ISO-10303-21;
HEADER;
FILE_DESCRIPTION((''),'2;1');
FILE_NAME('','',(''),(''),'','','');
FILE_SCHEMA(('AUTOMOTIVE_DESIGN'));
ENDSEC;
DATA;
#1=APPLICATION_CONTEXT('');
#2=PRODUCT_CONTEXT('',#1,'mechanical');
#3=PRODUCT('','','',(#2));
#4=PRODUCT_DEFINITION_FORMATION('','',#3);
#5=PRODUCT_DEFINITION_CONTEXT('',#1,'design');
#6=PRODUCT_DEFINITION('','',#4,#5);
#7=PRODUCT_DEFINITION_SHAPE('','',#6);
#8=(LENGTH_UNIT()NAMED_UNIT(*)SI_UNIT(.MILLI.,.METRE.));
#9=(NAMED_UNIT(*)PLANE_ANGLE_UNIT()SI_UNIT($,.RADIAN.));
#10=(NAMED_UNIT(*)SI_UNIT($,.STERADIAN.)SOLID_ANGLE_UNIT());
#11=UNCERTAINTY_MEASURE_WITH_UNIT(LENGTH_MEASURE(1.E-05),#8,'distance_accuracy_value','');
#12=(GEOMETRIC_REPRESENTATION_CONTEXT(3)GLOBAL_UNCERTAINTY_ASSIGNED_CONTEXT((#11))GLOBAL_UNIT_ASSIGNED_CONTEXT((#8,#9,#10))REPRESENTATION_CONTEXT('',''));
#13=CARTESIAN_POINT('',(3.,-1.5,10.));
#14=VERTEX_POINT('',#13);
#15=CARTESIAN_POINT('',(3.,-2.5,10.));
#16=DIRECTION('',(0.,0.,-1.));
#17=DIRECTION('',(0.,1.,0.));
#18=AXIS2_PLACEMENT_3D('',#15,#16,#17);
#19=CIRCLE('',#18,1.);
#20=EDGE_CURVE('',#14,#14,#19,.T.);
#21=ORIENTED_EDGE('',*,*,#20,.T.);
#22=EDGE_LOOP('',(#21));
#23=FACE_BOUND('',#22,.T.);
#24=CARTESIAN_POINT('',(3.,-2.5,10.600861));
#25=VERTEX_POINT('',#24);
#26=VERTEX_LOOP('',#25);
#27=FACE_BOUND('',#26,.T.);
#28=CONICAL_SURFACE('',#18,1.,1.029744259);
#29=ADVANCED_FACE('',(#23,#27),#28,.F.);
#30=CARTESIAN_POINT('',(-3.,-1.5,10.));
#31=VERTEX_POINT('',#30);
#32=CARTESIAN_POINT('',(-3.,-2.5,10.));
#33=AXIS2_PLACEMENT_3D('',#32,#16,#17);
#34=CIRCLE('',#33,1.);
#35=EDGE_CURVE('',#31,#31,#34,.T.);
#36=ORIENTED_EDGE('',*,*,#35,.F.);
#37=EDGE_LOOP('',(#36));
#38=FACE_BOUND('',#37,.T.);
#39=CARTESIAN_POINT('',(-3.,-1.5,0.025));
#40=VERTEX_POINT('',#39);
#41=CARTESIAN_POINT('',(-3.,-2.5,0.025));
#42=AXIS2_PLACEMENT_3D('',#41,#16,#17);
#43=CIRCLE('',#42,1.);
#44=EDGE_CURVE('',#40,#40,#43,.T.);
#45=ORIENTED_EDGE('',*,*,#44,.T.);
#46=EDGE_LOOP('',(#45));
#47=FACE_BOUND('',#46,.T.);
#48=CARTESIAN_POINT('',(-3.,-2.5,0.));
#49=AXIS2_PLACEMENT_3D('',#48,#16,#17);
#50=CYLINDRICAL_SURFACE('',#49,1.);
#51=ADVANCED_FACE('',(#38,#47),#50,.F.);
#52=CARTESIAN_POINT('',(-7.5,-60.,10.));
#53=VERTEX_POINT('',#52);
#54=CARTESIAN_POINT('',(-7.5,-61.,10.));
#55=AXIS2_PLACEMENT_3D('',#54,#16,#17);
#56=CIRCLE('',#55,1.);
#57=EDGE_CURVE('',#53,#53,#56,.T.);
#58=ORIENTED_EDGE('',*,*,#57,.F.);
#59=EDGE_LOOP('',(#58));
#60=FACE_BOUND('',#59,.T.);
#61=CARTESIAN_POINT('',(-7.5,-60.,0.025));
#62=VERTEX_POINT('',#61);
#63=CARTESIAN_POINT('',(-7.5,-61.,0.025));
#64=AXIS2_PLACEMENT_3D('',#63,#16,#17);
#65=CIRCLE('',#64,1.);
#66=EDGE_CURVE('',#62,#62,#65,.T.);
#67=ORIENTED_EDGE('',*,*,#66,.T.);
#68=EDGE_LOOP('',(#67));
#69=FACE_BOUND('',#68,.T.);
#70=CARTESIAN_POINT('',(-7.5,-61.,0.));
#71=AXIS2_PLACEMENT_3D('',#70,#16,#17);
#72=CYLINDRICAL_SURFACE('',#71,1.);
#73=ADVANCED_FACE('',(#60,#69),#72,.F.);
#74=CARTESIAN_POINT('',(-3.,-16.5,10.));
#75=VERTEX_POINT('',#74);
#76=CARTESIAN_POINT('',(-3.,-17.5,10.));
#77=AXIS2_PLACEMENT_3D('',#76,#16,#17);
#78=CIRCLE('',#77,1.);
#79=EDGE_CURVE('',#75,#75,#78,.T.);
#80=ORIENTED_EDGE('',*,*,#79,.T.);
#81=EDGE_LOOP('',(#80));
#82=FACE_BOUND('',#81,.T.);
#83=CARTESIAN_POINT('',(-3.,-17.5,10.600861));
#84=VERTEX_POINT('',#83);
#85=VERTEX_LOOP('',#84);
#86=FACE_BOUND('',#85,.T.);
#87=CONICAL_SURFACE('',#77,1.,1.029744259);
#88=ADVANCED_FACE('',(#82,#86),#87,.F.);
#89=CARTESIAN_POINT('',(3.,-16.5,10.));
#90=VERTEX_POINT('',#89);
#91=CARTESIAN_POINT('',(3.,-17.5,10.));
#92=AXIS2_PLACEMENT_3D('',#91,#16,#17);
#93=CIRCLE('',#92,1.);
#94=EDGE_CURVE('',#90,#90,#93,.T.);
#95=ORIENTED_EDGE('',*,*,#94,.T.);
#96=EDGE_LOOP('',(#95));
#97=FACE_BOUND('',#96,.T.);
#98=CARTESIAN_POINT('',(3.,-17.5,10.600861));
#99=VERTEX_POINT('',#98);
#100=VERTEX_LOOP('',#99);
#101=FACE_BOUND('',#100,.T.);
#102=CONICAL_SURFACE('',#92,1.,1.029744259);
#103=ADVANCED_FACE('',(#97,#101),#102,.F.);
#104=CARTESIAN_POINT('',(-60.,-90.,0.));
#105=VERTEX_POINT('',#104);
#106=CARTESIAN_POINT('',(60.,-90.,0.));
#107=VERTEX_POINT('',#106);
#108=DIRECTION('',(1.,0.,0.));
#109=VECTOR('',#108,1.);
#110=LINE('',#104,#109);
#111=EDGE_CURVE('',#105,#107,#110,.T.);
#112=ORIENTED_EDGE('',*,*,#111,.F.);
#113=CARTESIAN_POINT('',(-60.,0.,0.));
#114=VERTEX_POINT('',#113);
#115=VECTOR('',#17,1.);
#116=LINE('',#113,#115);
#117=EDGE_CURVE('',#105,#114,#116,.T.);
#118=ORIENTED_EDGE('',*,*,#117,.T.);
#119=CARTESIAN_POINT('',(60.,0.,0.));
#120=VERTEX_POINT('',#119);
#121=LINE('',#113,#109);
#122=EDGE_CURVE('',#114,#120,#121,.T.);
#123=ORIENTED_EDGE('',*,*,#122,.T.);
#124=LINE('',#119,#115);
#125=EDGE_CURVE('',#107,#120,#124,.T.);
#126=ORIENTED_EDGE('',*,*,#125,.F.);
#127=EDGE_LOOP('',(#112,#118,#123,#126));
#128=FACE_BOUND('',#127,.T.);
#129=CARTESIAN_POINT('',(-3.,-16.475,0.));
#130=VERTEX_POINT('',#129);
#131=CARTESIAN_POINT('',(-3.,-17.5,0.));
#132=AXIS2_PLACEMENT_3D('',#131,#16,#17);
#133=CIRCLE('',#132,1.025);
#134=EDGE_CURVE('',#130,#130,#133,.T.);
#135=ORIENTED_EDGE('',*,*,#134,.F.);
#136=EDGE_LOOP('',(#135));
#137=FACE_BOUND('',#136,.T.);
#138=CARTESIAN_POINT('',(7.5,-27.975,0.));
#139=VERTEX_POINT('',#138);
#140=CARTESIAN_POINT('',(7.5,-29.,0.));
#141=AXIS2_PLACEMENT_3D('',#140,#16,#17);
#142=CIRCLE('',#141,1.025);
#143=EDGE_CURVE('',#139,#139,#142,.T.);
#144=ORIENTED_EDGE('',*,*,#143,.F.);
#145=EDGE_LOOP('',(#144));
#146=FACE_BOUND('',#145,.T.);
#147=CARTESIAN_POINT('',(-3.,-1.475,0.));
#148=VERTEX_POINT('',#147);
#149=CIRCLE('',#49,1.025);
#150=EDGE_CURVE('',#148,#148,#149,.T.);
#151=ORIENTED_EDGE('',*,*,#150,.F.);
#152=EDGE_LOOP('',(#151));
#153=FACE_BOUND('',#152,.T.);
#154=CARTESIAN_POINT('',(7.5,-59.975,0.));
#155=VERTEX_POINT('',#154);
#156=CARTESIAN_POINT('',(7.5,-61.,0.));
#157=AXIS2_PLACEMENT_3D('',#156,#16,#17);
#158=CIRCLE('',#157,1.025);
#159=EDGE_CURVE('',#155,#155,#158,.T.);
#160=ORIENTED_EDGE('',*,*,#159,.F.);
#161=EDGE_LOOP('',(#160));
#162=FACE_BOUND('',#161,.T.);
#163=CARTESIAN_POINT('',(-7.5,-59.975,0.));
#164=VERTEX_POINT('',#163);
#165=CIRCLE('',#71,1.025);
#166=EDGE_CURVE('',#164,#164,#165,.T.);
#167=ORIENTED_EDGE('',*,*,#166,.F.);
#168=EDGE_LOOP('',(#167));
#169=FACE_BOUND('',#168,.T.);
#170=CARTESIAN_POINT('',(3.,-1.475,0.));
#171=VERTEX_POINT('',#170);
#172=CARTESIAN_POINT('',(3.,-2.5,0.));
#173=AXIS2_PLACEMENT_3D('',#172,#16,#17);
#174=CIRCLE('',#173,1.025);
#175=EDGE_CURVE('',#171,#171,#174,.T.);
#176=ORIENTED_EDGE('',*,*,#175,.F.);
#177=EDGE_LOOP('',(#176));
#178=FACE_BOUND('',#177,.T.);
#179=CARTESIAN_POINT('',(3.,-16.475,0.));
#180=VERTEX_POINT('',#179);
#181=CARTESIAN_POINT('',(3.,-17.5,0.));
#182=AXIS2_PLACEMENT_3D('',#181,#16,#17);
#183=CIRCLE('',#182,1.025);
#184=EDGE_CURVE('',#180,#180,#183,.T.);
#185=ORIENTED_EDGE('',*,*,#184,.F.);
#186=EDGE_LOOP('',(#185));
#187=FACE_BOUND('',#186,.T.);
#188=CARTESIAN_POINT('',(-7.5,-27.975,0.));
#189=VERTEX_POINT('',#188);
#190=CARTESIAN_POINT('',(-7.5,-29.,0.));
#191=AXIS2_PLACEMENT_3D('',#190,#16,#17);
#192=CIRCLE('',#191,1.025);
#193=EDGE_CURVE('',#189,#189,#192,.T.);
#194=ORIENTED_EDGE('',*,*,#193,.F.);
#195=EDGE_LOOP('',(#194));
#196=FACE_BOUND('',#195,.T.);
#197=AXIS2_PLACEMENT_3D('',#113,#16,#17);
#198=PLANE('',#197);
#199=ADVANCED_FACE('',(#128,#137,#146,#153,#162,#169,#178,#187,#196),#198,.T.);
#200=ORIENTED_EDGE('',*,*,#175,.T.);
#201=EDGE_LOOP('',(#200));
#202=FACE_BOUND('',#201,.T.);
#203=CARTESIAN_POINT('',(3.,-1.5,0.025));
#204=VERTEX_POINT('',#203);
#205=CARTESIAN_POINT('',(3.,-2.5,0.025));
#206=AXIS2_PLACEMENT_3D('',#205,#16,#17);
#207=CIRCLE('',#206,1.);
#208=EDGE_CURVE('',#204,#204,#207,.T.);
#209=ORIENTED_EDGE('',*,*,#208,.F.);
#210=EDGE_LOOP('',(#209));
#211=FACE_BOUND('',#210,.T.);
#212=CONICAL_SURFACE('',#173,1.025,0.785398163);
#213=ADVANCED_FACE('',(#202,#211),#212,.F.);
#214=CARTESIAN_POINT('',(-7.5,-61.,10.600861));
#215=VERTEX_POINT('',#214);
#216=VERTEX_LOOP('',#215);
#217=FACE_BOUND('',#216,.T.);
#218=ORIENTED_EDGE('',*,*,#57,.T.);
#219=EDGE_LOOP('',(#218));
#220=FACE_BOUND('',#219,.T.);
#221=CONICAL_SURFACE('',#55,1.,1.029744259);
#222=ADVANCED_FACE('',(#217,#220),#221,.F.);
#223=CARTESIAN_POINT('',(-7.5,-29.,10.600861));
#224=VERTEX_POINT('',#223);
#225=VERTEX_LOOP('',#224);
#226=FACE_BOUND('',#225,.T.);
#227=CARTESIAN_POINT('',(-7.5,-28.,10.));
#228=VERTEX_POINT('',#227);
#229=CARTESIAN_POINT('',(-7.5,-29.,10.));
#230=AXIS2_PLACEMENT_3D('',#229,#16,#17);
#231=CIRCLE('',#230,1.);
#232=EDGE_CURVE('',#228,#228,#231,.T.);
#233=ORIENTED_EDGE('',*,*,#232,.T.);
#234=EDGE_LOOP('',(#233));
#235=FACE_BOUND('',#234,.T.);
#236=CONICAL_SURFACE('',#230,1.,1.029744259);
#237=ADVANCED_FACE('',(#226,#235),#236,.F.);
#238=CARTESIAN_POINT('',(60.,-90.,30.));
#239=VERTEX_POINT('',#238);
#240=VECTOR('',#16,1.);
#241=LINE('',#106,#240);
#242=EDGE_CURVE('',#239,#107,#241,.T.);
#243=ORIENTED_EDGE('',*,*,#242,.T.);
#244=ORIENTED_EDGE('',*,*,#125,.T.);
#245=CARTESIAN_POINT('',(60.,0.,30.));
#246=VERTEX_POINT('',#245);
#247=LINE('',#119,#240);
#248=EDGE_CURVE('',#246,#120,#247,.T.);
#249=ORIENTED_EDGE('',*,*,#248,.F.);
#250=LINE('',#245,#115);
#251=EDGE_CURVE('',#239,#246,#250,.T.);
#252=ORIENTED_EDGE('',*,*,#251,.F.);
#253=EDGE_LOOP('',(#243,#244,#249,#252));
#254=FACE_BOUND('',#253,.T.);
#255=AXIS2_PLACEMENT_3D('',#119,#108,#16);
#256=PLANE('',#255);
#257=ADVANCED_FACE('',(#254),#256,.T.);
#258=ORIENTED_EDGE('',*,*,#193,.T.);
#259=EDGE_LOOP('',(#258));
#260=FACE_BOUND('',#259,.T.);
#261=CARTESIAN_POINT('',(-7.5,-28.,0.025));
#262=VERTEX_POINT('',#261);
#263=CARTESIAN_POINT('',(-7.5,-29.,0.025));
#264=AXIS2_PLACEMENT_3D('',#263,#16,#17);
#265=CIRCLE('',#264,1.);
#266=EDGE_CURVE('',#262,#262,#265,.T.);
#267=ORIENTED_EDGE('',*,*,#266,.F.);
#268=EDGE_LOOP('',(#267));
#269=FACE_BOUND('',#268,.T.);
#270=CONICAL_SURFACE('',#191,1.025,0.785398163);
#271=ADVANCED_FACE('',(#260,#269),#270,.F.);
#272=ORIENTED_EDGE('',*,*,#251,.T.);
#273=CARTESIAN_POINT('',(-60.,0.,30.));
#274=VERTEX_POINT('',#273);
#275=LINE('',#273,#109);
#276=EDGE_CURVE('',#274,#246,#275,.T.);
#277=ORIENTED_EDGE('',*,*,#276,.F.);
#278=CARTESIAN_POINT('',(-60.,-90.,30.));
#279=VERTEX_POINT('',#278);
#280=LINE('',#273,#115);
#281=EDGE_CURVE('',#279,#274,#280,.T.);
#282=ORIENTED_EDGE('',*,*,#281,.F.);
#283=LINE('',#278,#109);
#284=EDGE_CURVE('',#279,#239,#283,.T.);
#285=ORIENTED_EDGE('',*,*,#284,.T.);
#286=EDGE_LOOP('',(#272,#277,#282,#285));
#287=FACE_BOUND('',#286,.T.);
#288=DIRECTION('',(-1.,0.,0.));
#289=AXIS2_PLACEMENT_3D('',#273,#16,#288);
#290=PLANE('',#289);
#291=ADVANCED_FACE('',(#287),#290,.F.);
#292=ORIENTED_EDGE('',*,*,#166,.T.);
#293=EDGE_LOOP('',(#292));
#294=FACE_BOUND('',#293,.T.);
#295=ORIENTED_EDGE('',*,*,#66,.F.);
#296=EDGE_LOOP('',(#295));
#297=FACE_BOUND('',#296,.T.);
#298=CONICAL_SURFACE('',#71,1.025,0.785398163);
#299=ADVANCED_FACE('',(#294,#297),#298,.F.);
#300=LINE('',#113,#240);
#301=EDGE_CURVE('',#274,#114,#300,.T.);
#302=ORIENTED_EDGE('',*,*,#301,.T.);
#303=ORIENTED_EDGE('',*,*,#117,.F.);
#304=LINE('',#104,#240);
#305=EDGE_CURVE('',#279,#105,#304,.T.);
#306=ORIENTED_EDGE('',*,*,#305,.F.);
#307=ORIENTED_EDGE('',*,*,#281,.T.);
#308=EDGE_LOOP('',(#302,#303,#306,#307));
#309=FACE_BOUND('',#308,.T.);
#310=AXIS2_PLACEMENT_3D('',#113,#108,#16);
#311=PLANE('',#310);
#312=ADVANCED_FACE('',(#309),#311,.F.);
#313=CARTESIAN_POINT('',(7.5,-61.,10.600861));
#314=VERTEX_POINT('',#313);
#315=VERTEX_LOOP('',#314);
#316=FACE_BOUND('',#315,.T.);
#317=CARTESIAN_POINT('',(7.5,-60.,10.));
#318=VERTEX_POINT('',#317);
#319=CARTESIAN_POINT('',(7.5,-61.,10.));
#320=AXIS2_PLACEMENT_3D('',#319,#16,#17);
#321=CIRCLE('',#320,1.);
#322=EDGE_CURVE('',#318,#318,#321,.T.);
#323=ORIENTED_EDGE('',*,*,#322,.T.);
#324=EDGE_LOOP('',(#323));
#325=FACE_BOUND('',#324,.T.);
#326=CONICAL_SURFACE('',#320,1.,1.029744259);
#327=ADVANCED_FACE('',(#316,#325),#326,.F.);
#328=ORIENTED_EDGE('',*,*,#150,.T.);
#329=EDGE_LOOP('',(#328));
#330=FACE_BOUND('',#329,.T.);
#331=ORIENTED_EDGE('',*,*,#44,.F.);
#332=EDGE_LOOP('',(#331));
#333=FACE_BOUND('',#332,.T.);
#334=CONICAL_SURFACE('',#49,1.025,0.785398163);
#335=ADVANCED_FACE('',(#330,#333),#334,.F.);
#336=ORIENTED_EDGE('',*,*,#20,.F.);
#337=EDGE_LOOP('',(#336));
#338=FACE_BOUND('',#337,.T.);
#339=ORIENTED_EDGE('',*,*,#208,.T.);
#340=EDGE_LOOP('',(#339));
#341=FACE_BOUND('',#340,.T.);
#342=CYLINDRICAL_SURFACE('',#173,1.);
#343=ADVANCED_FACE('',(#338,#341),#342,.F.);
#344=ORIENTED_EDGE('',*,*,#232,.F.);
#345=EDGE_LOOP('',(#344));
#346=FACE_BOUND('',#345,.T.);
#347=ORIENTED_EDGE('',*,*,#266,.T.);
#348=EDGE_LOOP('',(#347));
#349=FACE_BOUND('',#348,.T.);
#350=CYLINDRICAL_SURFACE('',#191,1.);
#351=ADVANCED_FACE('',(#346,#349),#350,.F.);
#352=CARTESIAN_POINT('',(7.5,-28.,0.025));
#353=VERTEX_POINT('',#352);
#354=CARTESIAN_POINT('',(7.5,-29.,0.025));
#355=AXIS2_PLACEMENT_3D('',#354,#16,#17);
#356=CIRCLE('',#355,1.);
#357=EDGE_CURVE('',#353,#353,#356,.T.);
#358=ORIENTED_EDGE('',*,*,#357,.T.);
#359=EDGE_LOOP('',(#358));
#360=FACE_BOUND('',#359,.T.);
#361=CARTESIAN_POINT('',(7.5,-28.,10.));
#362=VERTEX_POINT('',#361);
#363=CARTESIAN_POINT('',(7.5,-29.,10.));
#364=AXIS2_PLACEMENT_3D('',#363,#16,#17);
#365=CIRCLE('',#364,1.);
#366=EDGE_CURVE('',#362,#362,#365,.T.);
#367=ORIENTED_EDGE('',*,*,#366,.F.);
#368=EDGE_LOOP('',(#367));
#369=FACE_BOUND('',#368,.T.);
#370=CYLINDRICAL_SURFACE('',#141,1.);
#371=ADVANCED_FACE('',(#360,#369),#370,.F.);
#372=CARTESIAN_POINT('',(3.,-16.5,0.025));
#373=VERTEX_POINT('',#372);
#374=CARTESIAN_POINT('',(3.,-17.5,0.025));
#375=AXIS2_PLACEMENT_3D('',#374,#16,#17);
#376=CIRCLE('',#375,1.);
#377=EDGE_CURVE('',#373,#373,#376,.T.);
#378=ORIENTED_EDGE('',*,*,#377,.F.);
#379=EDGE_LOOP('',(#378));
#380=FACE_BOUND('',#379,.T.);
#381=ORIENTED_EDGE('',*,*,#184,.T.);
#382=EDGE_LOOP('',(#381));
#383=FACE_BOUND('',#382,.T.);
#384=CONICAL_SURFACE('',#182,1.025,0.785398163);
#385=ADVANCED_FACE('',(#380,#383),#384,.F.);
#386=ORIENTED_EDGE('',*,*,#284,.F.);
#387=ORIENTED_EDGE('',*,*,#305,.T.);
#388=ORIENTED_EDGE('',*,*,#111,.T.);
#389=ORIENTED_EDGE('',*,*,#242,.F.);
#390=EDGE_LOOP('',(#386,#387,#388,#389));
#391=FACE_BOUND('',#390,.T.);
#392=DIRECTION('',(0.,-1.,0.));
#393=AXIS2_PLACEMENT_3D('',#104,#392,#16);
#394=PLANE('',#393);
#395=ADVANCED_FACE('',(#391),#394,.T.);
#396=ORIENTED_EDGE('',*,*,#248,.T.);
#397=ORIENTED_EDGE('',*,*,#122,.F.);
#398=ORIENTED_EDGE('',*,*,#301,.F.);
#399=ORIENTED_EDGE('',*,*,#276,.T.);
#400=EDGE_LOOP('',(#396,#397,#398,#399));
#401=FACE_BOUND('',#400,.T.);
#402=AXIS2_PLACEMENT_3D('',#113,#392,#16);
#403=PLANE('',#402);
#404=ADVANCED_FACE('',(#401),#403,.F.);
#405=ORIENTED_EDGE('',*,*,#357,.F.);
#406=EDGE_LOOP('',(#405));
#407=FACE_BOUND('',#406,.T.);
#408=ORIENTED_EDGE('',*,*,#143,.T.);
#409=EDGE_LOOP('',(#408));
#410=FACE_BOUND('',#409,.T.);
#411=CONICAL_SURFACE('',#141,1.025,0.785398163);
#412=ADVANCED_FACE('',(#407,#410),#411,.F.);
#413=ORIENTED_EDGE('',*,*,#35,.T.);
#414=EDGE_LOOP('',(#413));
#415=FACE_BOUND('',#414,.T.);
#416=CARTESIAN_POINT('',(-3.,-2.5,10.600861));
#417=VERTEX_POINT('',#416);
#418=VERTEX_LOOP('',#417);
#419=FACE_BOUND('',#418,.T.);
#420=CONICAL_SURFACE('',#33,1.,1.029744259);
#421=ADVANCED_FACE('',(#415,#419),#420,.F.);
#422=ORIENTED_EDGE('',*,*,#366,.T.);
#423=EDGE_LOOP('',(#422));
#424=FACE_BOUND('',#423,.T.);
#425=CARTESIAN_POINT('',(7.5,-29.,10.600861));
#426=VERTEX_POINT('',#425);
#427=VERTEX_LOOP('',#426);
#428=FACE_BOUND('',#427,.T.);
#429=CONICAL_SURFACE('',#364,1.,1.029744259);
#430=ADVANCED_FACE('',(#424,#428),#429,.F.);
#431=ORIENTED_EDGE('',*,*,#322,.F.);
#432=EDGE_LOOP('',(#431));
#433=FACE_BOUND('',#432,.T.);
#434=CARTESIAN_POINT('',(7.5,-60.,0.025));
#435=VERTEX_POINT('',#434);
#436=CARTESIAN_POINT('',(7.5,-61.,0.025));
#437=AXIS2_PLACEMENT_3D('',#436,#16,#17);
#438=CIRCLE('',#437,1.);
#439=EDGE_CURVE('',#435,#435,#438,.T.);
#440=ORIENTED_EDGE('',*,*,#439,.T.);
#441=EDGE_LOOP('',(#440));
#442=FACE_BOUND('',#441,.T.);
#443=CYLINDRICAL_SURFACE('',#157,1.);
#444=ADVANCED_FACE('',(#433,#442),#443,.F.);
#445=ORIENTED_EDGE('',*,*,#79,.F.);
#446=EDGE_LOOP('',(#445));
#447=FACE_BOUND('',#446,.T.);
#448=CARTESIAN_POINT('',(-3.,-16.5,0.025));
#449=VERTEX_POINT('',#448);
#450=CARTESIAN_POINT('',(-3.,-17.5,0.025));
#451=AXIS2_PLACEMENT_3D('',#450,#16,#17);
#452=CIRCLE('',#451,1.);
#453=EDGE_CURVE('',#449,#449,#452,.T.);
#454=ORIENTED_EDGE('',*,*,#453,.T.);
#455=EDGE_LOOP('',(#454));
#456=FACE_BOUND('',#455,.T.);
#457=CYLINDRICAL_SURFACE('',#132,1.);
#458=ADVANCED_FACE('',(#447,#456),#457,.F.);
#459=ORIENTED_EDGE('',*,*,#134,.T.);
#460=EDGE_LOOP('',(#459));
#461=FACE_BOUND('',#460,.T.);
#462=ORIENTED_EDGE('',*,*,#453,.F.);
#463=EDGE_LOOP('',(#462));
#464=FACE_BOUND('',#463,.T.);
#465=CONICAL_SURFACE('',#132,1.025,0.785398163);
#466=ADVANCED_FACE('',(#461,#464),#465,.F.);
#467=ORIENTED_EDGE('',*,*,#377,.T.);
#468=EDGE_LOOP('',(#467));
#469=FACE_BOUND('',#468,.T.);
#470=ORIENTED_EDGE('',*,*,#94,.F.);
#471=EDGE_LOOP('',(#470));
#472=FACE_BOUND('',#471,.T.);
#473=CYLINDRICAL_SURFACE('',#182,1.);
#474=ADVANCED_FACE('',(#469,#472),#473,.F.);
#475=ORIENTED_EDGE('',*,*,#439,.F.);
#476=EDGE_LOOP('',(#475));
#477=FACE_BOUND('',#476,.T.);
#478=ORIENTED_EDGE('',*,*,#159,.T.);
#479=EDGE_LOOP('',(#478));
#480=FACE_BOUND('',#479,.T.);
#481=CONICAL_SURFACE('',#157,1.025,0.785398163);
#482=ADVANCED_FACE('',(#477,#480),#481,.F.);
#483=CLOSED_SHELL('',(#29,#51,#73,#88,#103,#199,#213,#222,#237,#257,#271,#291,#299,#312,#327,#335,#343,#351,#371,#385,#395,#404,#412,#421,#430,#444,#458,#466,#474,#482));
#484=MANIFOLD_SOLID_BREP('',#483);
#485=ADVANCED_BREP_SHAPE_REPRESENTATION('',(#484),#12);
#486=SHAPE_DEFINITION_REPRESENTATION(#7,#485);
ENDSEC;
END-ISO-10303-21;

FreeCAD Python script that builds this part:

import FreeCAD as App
import Part
import Sketcher
Q = App.Units.Quantity

doc = App.newDocument("Part")
body = doc.addObject("PartDesign::Body", "Body")

# Sketch on YZ plane
sketch1 = body.newObject("Sketcher::SketchObject", "Sketch")
sketch1.AttachmentSupport = (doc.getObject("YZ_Plane"), [""])
sketch1.MapMode = "FlatFace"
sketch1.addGeometry([
    Part.LineSegment(App.Vector(-90, 30, 0), App.Vector(-90, 0, 0)),
    Part.LineSegment(App.Vector(-90, 0, 0), App.Vector(0, 0, 0)),
    Part.LineSegment(App.Vector(0, 0, 0), App.Vector(0, 30, 0)),
    Part.LineSegment(App.Vector(0, 30, 0), App.Vector(-90, 30, 0)),
], False)
sketch1.addConstraint([
    Sketcher.Constraint("Coincident", 0, 2, 1, 1),
    Sketcher.Constraint("Coincident", 1, 2, 2, 1),
    Sketcher.Constraint("Coincident", 2, 2, 3, 1),
    Sketcher.Constraint("Coincident", 3, 2, 0, 1),
    Sketcher.Constraint("Vertical", 0),
    Sketcher.Constraint("Horizontal", 1),
    Sketcher.Constraint("Vertical", 2),
    Sketcher.Constraint("Horizontal", 3),
    Sketcher.Constraint("Coincident", 1, 2, -1, 1),
    Sketcher.Constraint("DistanceX", 1, 1, 1, 2, Q("90 mm")),
    Sketcher.Constraint("DistanceY", 0, 2, 0, 1, Q("30 mm")),
])
pad1 = body.newObject("PartDesign::Pad", "Pad")
pad1.Profile = sketch1
pad1.Type = "TwoLengths"
pad1.Length = 60
pad1.Length2 = 60

# Sketch on XY plane
sketch2 = body.newObject("Sketcher::SketchObject", "Sketch001")
sketch2.AttachmentSupport = (doc.getObject("XY_Plane"), [""])
sketch2.MapMode = "FlatFace"
sketch2.addGeometry([
    Part.Circle(App.Vector(7.5, -29, 0), App.Vector(0, 0, 1), 1),
    Part.Circle(App.Vector(-7.5, -61, 0), App.Vector(0, 0, 1), 1),
    Part.Circle(App.Vector(-7.5, -29, 0), App.Vector(0, 0, 1), 1),
    Part.Circle(App.Vector(7.5, -61, 0), App.Vector(0, 0, 1), 1),
], False)
sketch2.addConstraint([
    Sketcher.Constraint("Equal", 0, 1),
    Sketcher.Constraint("Equal", 1, 2),
    Sketcher.Constraint("Equal", 2, 3),
    Sketcher.Constraint("Symmetric", 0, 3, 2, 3, -2),
    Sketcher.Constraint("Symmetric", 1, 3, 3, 3, -2),
    Sketcher.Constraint("Vertical", 1, 3, 2, 3),
    Sketcher.Constraint("Diameter", 0, Q("2 mm")),
    Sketcher.Constraint("DistanceY", 0, 3, -1, 1, Q("29 mm")),
    Sketcher.Constraint("DistanceY", 1, 3, -1, 1, Q("61 mm")),
    Sketcher.Constraint("DistanceX", 1, 3, 0, 3, Q("15 mm")),
])
doc.recompute()
hole = body.newObject("PartDesign::Hole", "Hole")
hole.Profile = sketch2
hole.ThreadType = "None"
hole.Diameter = 2
hole.DepthType = "Dimension"
hole.Depth = 10
hole.DrillPoint = "Angled"
hole.DrillPointAngle = 118
hole.HoleCutType = "Countersink"
hole.HoleCutDiameter = 2.05
hole.HoleCutCountersinkAngle = 90
hole.Reversed = True

# Sketch on XY plane
sketch3 = body.newObject("Sketcher::SketchObject", "Sketch002")
sketch3.AttachmentSupport = (doc.getObject("XY_Plane"), [""])
sketch3.MapMode = "FlatFace"
sketch3.addGeometry([
    Part.Circle(App.Vector(-3, -2.5, 0), App.Vector(0, 0, 1), 1),
    Part.Circle(App.Vector(-3, -17.5, 0), App.Vector(0, 0, 1), 1),
    Part.Circle(App.Vector(3, -17.5, 0), App.Vector(0, 0, 1), 1),
    Part.Circle(App.Vector(3, -2.5, 0), App.Vector(0, 0, 1), 1),
], False)
sketch3.addConstraint([
    Sketcher.Constraint("Equal", 0, 1),
    Sketcher.Constraint("Equal", 1, 2),
    Sketcher.Constraint("Equal", 2, 3),
    Sketcher.Constraint("Symmetric", 1, 3, 2, 3, -2),
    Sketcher.Constraint("Symmetric", 0, 3, 3, 3, -2),
    Sketcher.Constraint("Vertical", 0, 3, 1, 3),
    Sketcher.Constraint("Diameter", 0, Q("2 mm")),
    Sketcher.Constraint("DistanceX", 0, 3, -1, 1, Q("3 mm")),
    Sketcher.Constraint("DistanceY", 1, 3, 0, 3, Q("15 mm")),
    Sketcher.Constraint("DistanceY", 0, 3, -1, 1, Q("2.5 mm")),
])
doc.recompute()
hole2 = body.newObject("PartDesign::Hole", "Hole001")
hole2.Profile = sketch3
hole2.ThreadType = "None"
hole2.Diameter = 2
hole2.DepthType = "Dimension"
hole2.Depth = 10
hole2.DrillPoint = "Angled"
hole2.DrillPointAngle = 118
hole2.HoleCutType = "Countersink"
hole2.HoleCutDiameter = 2.05
hole2.HoleCutCountersinkAngle = 90
hole2.Reversed = True

doc.recompute()
